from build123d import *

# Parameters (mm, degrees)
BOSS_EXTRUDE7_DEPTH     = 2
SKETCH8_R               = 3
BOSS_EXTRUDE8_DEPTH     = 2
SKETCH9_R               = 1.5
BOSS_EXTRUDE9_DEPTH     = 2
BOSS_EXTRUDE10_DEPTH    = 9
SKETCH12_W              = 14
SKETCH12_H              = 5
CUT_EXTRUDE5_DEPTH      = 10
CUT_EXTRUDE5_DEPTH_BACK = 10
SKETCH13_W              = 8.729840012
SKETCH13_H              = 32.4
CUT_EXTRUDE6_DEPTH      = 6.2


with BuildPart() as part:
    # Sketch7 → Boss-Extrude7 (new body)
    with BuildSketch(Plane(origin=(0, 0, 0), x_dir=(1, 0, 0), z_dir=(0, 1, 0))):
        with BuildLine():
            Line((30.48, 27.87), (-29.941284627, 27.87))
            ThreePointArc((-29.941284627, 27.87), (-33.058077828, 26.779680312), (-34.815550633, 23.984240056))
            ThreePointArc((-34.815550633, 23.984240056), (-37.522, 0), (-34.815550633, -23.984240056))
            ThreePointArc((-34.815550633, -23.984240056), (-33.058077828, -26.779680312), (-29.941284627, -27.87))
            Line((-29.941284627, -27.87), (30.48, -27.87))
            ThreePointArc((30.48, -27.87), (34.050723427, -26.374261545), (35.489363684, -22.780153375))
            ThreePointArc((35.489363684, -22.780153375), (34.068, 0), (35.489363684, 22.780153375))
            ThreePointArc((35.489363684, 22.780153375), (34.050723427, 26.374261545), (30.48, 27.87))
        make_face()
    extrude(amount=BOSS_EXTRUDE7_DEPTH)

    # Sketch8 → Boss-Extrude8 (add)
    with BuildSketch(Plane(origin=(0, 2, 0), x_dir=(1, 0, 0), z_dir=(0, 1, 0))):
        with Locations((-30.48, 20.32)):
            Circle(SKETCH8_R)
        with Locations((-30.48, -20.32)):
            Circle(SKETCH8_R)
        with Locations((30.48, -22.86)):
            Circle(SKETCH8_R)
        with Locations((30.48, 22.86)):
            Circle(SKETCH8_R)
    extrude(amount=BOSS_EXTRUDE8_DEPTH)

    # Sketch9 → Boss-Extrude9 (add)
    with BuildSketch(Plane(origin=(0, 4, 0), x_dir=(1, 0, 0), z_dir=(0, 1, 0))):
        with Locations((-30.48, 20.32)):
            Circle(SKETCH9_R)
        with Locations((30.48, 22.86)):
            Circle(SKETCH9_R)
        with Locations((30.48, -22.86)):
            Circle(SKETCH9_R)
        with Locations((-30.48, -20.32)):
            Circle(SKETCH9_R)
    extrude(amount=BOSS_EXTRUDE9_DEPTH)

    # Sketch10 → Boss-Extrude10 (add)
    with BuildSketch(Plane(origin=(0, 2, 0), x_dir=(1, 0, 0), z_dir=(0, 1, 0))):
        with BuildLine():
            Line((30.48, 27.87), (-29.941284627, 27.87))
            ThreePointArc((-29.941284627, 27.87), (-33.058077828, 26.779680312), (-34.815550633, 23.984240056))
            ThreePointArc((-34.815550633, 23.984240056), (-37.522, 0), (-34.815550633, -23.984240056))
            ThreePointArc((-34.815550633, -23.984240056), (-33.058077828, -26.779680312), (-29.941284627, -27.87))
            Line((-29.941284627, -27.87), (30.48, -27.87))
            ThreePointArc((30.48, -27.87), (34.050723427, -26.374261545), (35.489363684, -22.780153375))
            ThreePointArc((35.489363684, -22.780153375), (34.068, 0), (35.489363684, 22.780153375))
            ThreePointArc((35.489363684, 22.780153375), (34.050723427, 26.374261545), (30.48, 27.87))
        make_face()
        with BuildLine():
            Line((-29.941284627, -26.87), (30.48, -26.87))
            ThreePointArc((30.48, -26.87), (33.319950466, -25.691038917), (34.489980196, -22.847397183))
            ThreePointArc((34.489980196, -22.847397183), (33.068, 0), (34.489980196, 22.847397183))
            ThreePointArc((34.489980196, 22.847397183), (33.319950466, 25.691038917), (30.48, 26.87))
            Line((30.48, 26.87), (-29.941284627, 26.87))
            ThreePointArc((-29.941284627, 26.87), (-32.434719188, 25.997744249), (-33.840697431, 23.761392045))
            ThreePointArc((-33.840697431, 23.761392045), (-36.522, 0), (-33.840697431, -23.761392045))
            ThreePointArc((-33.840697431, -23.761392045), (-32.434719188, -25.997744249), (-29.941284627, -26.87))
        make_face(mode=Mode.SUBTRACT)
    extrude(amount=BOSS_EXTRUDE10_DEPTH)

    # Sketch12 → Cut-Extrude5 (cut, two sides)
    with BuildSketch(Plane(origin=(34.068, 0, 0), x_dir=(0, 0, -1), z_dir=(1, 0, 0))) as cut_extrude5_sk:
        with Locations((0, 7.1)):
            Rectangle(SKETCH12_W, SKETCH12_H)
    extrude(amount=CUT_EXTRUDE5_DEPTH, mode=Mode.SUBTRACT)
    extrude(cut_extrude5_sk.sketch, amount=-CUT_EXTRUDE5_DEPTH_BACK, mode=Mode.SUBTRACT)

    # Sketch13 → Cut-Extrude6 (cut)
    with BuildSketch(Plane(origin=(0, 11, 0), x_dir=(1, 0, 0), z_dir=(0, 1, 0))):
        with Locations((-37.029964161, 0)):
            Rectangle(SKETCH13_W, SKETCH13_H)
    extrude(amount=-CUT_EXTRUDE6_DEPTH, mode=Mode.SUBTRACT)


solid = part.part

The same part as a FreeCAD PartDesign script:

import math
import FreeCAD as App
import Part
import Sketcher


def add_polygon(sketch, points):
    """Adds a closed chain of lines whose ends are joined by coincident constraints."""
    first, n = sketch.GeometryCount, len(points)
    for a, b in zip(points, points[1:] + points[:1]):
        sketch.addGeometry(Part.LineSegment(App.Vector(*a, 0), App.Vector(*b, 0)), False)
    for i in range(n):
        sketch.addConstraint(Sketcher.Constraint("Coincident", first + i, 2, first + (i + 1) % n, 1))

doc = App.newDocument("Part")
body = doc.addObject("PartDesign::Body", "Body")

sketch1 = doc.addObject("Sketcher::SketchObject", "Sketch")
body.addObject(sketch1)
sketch1.AttachmentSupport = (doc.XZ_Plane, [""])
sketch1.MapMode = "FlatFace"
sketch1.addGeometry(Part.LineSegment(App.Vector(30.48, -27.87, 0), App.Vector(-29.941285, -27.87, 0)), False)
sketch1.addGeometry(Part.ArcOfCircle(Part.Circle(App.Vector(-29.941285, -22.87, 0), App.Vector(0, 0, 1), 5), math.radians(-167.123634), math.radians(-90)), False)
sketch1.addGeometry(Part.ArcOfCircle(Part.Circle(App.Vector(70.104, 0, 0), App.Vector(0, 0, 1), 107.626), math.radians(167.123634), math.radians(192.876366)), False)
sketch1.addGeometry(Part.ArcOfCircle(Part.Circle(App.Vector(-29.941285, 22.87, 0), App.Vector(0, 0, 1), 5), math.radians(90), math.radians(167.123634)), False)
sketch1.addGeometry(Part.LineSegment(App.Vector(-29.941285, 27.87, 0), App.Vector(30.48, 27.87, 0)), False)
sketch1.addGeometry(Part.ArcOfCircle(Part.Circle(App.Vector(30.48, 22.86, 0), App.Vector(0, 0, 1), 5.01), math.radians(-0.913187), math.radians(90)), False)
sketch1.addGeometry(Part.ArcOfCircle(Part.Circle(App.Vector(217.327101, 0, 0), App.Vector(0, 0, 1), 183.259101), math.radians(172.859337), math.radians(187.140663)), False)
sketch1.addGeometry(Part.ArcOfCircle(Part.Circle(App.Vector(30.48, -22.86, 0), App.Vector(0, 0, 1), 5.01), math.radians(-90), math.radians(0.913187)), False)
sketch1.addConstraint(Sketcher.Constraint("Tangent", 0, 2, 1, 2))
sketch1.addConstraint(Sketcher.Constraint("Tangent", 1, 1, 2, 2))
sketch1.addConstraint(Sketcher.Constraint("Tangent", 2, 1, 3, 2))
sketch1.addConstraint(Sketcher.Constraint("Tangent", 3, 1, 4, 1))
sketch1.addConstraint(Sketcher.Constraint("Tangent", 4, 2, 5, 2))
sketch1.addConstraint(Sketcher.Constraint("Coincident", 5, 1, 6, 1))
sketch1.addConstraint(Sketcher.Constraint("Coincident", 6, 2, 7, 2))
sketch1.addConstraint(Sketcher.Constraint("Tangent", 7, 1, 0, 1))
sketch1.addConstraint(Sketcher.Constraint("Horizontal", 0))
sketch1.addConstraint(Sketcher.Constraint("Horizontal", 4))
sketch1.addConstraint(Sketcher.Constraint("Equal", 1, 3))
sketch1.addConstraint(Sketcher.Constraint("Equal", 5, 7))
sketch1.addConstraint(Sketcher.Constraint("Symmetric", 1, 3, 3, 3, -1))
sketch1.addConstraint(Sketcher.Constraint("Symmetric", 5, 1, 6, 2, -1))
sketch1.addConstraint(Sketcher.Constraint("Radius", 1, 5.0))
sketch1.addConstraint(Sketcher.Constraint("Radius", 5, 5.01))
sketch1.addConstraint(Sketcher.Constraint("Radius", 2, 107.626))
sketch1.addConstraint(Sketcher.Constraint("Radius", 6, 183.259101))
sketch1.addConstraint(Sketcher.Constraint("DistanceY", 1, 3, -1, 1, 22.87))
sketch1.addConstraint(Sketcher.Constraint("DistanceX", -1, 1, 5, 3, 30.48))
sketch1.addConstraint(Sketcher.Constraint("DistanceX", -1, 1, 2, 3, 70.104))
sketch1.addConstraint(Sketcher.Constraint("DistanceX", -1, 1, 6, 3, 217.327101))
pad1 = doc.addObject("PartDesign::Pad", "Pad")
body.addObject(pad1)
pad1.Profile = sketch1
pad1.Length = 2
pad1.Reversed = True

sketch2 = doc.addObject("Sketcher::SketchObject", "Sketch001")
body.addObject(sketch2)
sketch2.AttachmentSupport = (doc.XZ_Plane, [""])
sketch2.MapMode = "FlatFace"
sketch2.AttachmentOffset = App.Placement(App.Vector(0, 0, -2), App.Rotation())
sketch2.addGeometry(Part.Circle(App.Vector(-30.48, -20.32, 0), App.Vector(0, 0, 1), 3), False)
sketch2.addGeometry(Part.Circle(App.Vector(-30.48, 20.32, 0), App.Vector(0, 0, 1), 3), False)
sketch2.addGeometry(Part.Circle(App.Vector(30.48, 22.86, 0), App.Vector(0, 0, 1), 3), False)
sketch2.addGeometry(Part.Circle(App.Vector(30.48, -22.86, 0), App.Vector(0, 0, 1), 3), False)
sketch2.addConstraint(Sketcher.Constraint("Equal", 0, 1))
sketch2.addConstraint(Sketcher.Constraint("Equal", 1, 2))
sketch2.addConstraint(Sketcher.Constraint("Equal", 2, 3))
sketch2.addConstraint(Sketcher.Constraint("Symmetric", 0, 3, 1, 3, -1))
sketch2.addConstraint(Sketcher.Constraint("Symmetric", 2, 3, 3, 3, -1))
sketch2.addConstraint(Sketcher.Constraint("Diameter", 0, 6.0))
sketch2.addConstraint(Sketcher.Constraint("DistanceX", 0, 3, -1, 1, 30.48))
sketch2.addConstraint(Sketcher.Constraint("DistanceY", 0, 3, -1, 1, 20.32))
sketch2.addConstraint(Sketcher.Constraint("DistanceX", -1, 1, 2, 3, 30.48))
sketch2.addConstraint(Sketcher.Constraint("DistanceY", -1, 1, 2, 3, 22.86))
pad2 = doc.addObject("PartDesign::Pad", "Pad001")
body.addObject(pad2)
pad2.Profile = sketch2
pad2.Length = 2
pad2.Reversed = True

sketch3 = doc.addObject("Sketcher::SketchObject", "Sketch002")
body.addObject(sketch3)
sketch3.AttachmentSupport = (doc.XZ_Plane, [""])
sketch3.MapMode = "FlatFace"
sketch3.AttachmentOffset = App.Placement(App.Vector(0, 0, -4), App.Rotation())
sketch3.addGeometry(Part.Circle(App.Vector(-30.48, -20.32, 0), App.Vector(0, 0, 1), 1.5), False)
sketch3.addGeometry(Part.Circle(App.Vector(30.48, -22.86, 0), App.Vector(0, 0, 1), 1.5), False)
sketch3.addGeometry(Part.Circle(App.Vector(30.48, 22.86, 0), App.Vector(0, 0, 1), 1.5), False)
sketch3.addGeometry(Part.Circle(App.Vector(-30.48, 20.32, 0), App.Vector(0, 0, 1), 1.5), False)
sketch3.addConstraint(Sketcher.Constraint("Equal", 0, 1))
sketch3.addConstraint(Sketcher.Constraint("Equal", 1, 2))
sketch3.addConstraint(Sketcher.Constraint("Equal", 2, 3))
sketch3.addConstraint(Sketcher.Constraint("Symmetric", 1, 3, 2, 3, -1))
sketch3.addConstraint(Sketcher.Constraint("Symmetric", 0, 3, 3, 3, -1))
sketch3.addConstraint(Sketcher.Constraint("Diameter", 0, 3.0))
sketch3.addConstraint(Sketcher.Constraint("DistanceX", 0, 3, -1, 1, 30.48))
sketch3.addConstraint(Sketcher.Constraint("DistanceY", 0, 3, -1, 1, 20.32))
sketch3.addConstraint(Sketcher.Constraint("DistanceX", -1, 1, 1, 3, 30.48))
sketch3.addConstraint(Sketcher.Constraint("DistanceY", 1, 3, -1, 1, 22.86))
pad3 = doc.addObject("PartDesign::Pad", "Pad002")
body.addObject(pad3)
pad3.Profile = sketch3
pad3.Length = 2
pad3.Reversed = True

sketch4 = doc.addObject("Sketcher::SketchObject", "Sketch003")
body.addObject(sketch4)
sketch4.AttachmentSupport = (doc.XZ_Plane, [""])
sketch4.MapMode = "FlatFace"
sketch4.AttachmentOffset = App.Placement(App.Vector(0, 0, -2), App.Rotation())
sketch4.addGeometry(Part.LineSegment(App.Vector(30.48, -27.87, 0), App.Vector(-29.941285, -27.87, 0)), False)
sketch4.addGeometry(Part.ArcOfCircle(Part.Circle(App.Vector(-29.941285, -22.87, 0), App.Vector(0, 0, 1), 5), math.radians(-167.123634), math.radians(-90)), False)
sketch4.addGeometry(Part.ArcOfCircle(Part.Circle(App.Vector(70.104, 0, 0), App.Vector(0, 0, 1), 107.626), math.radians(167.123634), math.radians(192.876366)), False)
sketch4.addGeometry(Part.ArcOfCircle(Part.Circle(App.Vector(-29.941285, 22.87, 0), App.Vector(0, 0, 1), 5), math.radians(90), math.radians(167.123634)), False)
sketch4.addGeometry(Part.LineSegment(App.Vector(-29.941285, 27.87, 0), App.Vector(30.48, 27.87, 0)), False)
sketch4.addGeometry(Part.ArcOfCircle(Part.Circle(App.Vector(30.48, 22.86, 0), App.Vector(0, 0, 1), 5.01), math.radians(-0.913187), math.radians(90)), False)
sketch4.addGeometry(Part.ArcOfCircle(Part.Circle(App.Vector(217.327101, 0, 0), App.Vector(0, 0, 1), 183.259101), math.radians(172.859337), math.radians(187.140663)), False)
sketch4.addGeometry(Part.ArcOfCircle(Part.Circle(App.Vector(30.48, -22.86, 0), App.Vector(0, 0, 1), 5.01), math.radians(-90), math.radians(0.913187)), False)
sketch4.addGeometry(Part.LineSegment(App.Vector(30.48, 26.87, 0), App.Vector(-29.941285, 26.87, 0)), False)
sketch4.addGeometry(Part.ArcOfCircle(Part.Circle(App.Vector(-29.941285, 22.87, 0), App.Vector(0, 0, 1), 4), math.radians(90), math.radians(167.123634)), False)
sketch4.addGeometry(Part.ArcOfCircle(Part.Circle(App.Vector(70.104, 0, 0), App.Vector(0, 0, 1), 106.626), math.radians(167.123634), math.radians(192.876366)), False)
sketch4.addGeometry(Part.ArcOfCircle(Part.Circle(App.Vector(-29.941285, -22.87, 0), App.Vector(0, 0, 1), 4), math.radians(-167.123634), math.radians(-90)), False)
sketch4.addGeometry(Part.LineSegment(App.Vector(-29.941285, -26.87, 0), App.Vector(30.48, -26.87, 0)), False)
sketch4.addGeometry(Part.ArcOfCircle(Part.Circle(App.Vector(30.48, -22.86, 0), App.Vector(0, 0, 1), 4.01), math.radians(-90), math.radians(0.180072)), False)
sketch4.addGeometry(Part.ArcOfCircle(Part.Circle(App.Vector(217.327101, 0, 0), App.Vector(0, 0, 1), 184.259101), math.radians(172.877218), math.radians(187.122782)), False)
sketch4.addGeometry(Part.ArcOfCircle(Part.Circle(App.Vector(30.48, 22.86, 0), App.Vector(0, 0, 1), 4.01), math.radians(-0.180072), math.radians(90)), False)
sketch4.addConstraint(Sketcher.Constraint("Tangent", 0, 2, 1, 2))
sketch4.addConstraint(Sketcher.Constraint("Tangent", 1, 1, 2, 2))
sketch4.addConstraint(Sketcher.Constraint("Tangent", 2, 1, 3, 2))
sketch4.addConstraint(Sketcher.Constraint("Tangent", 3, 1, 4, 1))
sketch4.addConstraint(Sketcher.Constraint("Tangent", 4, 2, 5, 2))
sketch4.addConstraint(Sketcher.Constraint("Coincident", 5, 1, 6, 1))
sketch4.addConstraint(Sketcher.Constraint("Coincident", 6, 2, 7, 2))
sketch4.addConstraint(Sketcher.Constraint("Tangent", 7, 1, 0, 1))
sketch4.addConstraint(Sketcher.Constraint("Tangent", 8, 2, 9, 1))
sketch4.addConstraint(Sketcher.Constraint("Tangent", 9, 2, 10, 1))
sketch4.addConstraint(Sketcher.Constraint("Tangent", 10, 2, 11, 1))
sketch4.addConstraint(Sketcher.Constraint("Tangent", 11, 2, 12, 1))
sketch4.addConstraint(Sketcher.Constraint("Tangent", 12, 2, 13, 1))
sketch4.addConstraint(Sketcher.Constraint("Coincident", 13, 2, 14, 2))
sketch4.addConstraint(Sketcher.Constraint("Coincident", 14, 1, 15, 1))
sketch4.addConstraint(Sketcher.Constraint("Tangent", 15, 2, 8, 1))
sketch4.addConstraint(Sketcher.Constraint("Horizontal", 0))
sketch4.addConstraint(Sketcher.Constraint("Horizontal", 4))
sketch4.addConstraint(Sketcher.Constraint("Horizontal", 8))
sketch4.addConstraint(Sketcher.Constraint("Horizontal", 12))
sketch4.addConstraint(Sketcher.Constraint("Coincident", 9, 3, 3, 3))
sketch4.addConstraint(Sketcher.Constraint("Coincident", 10, 3, 2, 3))
sketch4.addConstraint(Sketcher.Constraint("Coincident", 11, 3, 1, 3))
sketch4.addConstraint(Sketcher.Constraint("Coincident", 13, 3, 7, 3))
sketch4.addConstraint(Sketcher.Constraint("Coincident", 14, 3, 6, 3))
sketch4.addConstraint(Sketcher.Constraint("Coincident", 15, 3, 5, 3))
sketch4.addConstraint(Sketcher.Constraint("Equal", 1, 3))
sketch4.addConstraint(Sketcher.Constraint("Equal", 5, 7))
sketch4.addConstraint(Sketcher.Constraint("Symmetric", 1, 3, 3, 3, -1))
sketch4.addConstraint(Sketcher.Constraint("Symmetric", 5, 1, 6, 2, -1))
sketch4.addConstraint(Sketcher.Constraint("Radius", 1, 5.0))
sketch4.addConstraint(Sketcher.Constraint("Radius", 9, 4.0))
sketch4.addConstraint(Sketcher.Constraint("Radius", 5, 5.01))
sketch4.addConstraint(Sketcher.Constraint("Radius", 2, 107.626))
sketch4.addConstraint(Sketcher.Constraint("Radius", 6, 183.259101))
sketch4.addConstraint(Sketcher.Constraint("Radius", 14, 184.259101))
sketch4.addConstraint(Sketcher.Constraint("DistanceY", 1, 3, -1, 1, 22.87))
sketch4.addConstraint(Sketcher.Constraint("DistanceX", -1, 1, 5, 3, 30.48))
sketch4.addConstraint(Sketcher.Constraint("DistanceX", -1, 1, 2, 3, 70.104))
sketch4.addConstraint(Sketcher.Constraint("DistanceX", -1, 1, 6, 3, 217.327101))
pad4 = doc.addObject("PartDesign::Pad", "Pad003")
body.addObject(pad4)
pad4.Profile = sketch4
pad4.Length = 9
pad4.Reversed = True

sketch5 = doc.addObject("Sketcher::SketchObject", "Sketch004")
body.addObject(sketch5)
sketch5.AttachmentSupport = (doc.YZ_Plane, [""])
sketch5.MapMode = "FlatFace"
sketch5.AttachmentOffset = App.Placement(App.Vector(0, 0, 34.068), App.Rotation())
add_polygon(sketch5, [(9.6, 7), (4.6, 7), (4.6, -7), (9.6, -7)])
sketch5.addConstraint(Sketcher.Constraint("Horizontal", 0))
sketch5.addConstraint(Sketcher.Constraint("Vertical", 1))
sketch5.addConstraint(Sketcher.Constraint("Horizontal", 2))
sketch5.addConstraint(Sketcher.Constraint("Vertical", 3))
sketch5.addConstraint(Sketcher.Constraint("DistanceX", 0, 2, 0, 1, 5.0))
sketch5.addConstraint(Sketcher.Constraint("DistanceY", 1, 2, 1, 1, 14.0))
sketch5.addConstraint(Sketcher.Constraint("DistanceY", -1, 1, 0, 2, 7.0))
sketch5.addConstraint(Sketcher.Constraint("DistanceX", -1, 1, 0, 2, 4.6))
pocket1 = doc.addObject("PartDesign::Pocket", "Pocket")
body.addObject(pocket1)
pocket1.Profile = sketch5
pocket1.Type = "TwoLengths"
pocket1.Length = 10
pocket1.Length2 = 10
pocket1.Reversed = True

sketch6 = doc.addObject("Sketcher::SketchObject", "Sketch005")
body.addObject(sketch6)
sketch6.AttachmentSupport = (doc.XZ_Plane, [""])
sketch6.MapMode = "FlatFace"
sketch6.AttachmentOffset = App.Placement(App.Vector(0, 0, -11), App.Rotation())
add_polygon(sketch6, [(-41.394884, -16.2), (-41.394884, 16.2), (-32.665044, 16.2), (-32.665044, -16.2)])
sketch6.addConstraint(Sketcher.Constraint("Vertical", 0))
sketch6.addConstraint(Sketcher.Constraint("Horizontal", 1))
sketch6.addConstraint(Sketcher.Constraint("Vertical", 2))
sketch6.addConstraint(Sketcher.Constraint("Horizontal", 3))
sketch6.addConstraint(Sketcher.Constraint("DistanceY", 0, 1, 0, 2, 32.4))
sketch6.addConstraint(Sketcher.Constraint("DistanceY", -1, 1, 0, 2, 16.2))
sketch6.addConstraint(Sketcher.Constraint("DistanceX", 1, 1, 1, 2, 8.72984))
sketch6.addConstraint(Sketcher.Constraint("DistanceX", 0, 2, -1, 1, 41.394884))
pocket2 = doc.addObject("PartDesign::Pocket", "Pocket001")
body.addObject(pocket2)
pocket2.Profile = sketch6
pocket2.Length = 6.2
pocket2.Reversed = True

doc.recompute()
